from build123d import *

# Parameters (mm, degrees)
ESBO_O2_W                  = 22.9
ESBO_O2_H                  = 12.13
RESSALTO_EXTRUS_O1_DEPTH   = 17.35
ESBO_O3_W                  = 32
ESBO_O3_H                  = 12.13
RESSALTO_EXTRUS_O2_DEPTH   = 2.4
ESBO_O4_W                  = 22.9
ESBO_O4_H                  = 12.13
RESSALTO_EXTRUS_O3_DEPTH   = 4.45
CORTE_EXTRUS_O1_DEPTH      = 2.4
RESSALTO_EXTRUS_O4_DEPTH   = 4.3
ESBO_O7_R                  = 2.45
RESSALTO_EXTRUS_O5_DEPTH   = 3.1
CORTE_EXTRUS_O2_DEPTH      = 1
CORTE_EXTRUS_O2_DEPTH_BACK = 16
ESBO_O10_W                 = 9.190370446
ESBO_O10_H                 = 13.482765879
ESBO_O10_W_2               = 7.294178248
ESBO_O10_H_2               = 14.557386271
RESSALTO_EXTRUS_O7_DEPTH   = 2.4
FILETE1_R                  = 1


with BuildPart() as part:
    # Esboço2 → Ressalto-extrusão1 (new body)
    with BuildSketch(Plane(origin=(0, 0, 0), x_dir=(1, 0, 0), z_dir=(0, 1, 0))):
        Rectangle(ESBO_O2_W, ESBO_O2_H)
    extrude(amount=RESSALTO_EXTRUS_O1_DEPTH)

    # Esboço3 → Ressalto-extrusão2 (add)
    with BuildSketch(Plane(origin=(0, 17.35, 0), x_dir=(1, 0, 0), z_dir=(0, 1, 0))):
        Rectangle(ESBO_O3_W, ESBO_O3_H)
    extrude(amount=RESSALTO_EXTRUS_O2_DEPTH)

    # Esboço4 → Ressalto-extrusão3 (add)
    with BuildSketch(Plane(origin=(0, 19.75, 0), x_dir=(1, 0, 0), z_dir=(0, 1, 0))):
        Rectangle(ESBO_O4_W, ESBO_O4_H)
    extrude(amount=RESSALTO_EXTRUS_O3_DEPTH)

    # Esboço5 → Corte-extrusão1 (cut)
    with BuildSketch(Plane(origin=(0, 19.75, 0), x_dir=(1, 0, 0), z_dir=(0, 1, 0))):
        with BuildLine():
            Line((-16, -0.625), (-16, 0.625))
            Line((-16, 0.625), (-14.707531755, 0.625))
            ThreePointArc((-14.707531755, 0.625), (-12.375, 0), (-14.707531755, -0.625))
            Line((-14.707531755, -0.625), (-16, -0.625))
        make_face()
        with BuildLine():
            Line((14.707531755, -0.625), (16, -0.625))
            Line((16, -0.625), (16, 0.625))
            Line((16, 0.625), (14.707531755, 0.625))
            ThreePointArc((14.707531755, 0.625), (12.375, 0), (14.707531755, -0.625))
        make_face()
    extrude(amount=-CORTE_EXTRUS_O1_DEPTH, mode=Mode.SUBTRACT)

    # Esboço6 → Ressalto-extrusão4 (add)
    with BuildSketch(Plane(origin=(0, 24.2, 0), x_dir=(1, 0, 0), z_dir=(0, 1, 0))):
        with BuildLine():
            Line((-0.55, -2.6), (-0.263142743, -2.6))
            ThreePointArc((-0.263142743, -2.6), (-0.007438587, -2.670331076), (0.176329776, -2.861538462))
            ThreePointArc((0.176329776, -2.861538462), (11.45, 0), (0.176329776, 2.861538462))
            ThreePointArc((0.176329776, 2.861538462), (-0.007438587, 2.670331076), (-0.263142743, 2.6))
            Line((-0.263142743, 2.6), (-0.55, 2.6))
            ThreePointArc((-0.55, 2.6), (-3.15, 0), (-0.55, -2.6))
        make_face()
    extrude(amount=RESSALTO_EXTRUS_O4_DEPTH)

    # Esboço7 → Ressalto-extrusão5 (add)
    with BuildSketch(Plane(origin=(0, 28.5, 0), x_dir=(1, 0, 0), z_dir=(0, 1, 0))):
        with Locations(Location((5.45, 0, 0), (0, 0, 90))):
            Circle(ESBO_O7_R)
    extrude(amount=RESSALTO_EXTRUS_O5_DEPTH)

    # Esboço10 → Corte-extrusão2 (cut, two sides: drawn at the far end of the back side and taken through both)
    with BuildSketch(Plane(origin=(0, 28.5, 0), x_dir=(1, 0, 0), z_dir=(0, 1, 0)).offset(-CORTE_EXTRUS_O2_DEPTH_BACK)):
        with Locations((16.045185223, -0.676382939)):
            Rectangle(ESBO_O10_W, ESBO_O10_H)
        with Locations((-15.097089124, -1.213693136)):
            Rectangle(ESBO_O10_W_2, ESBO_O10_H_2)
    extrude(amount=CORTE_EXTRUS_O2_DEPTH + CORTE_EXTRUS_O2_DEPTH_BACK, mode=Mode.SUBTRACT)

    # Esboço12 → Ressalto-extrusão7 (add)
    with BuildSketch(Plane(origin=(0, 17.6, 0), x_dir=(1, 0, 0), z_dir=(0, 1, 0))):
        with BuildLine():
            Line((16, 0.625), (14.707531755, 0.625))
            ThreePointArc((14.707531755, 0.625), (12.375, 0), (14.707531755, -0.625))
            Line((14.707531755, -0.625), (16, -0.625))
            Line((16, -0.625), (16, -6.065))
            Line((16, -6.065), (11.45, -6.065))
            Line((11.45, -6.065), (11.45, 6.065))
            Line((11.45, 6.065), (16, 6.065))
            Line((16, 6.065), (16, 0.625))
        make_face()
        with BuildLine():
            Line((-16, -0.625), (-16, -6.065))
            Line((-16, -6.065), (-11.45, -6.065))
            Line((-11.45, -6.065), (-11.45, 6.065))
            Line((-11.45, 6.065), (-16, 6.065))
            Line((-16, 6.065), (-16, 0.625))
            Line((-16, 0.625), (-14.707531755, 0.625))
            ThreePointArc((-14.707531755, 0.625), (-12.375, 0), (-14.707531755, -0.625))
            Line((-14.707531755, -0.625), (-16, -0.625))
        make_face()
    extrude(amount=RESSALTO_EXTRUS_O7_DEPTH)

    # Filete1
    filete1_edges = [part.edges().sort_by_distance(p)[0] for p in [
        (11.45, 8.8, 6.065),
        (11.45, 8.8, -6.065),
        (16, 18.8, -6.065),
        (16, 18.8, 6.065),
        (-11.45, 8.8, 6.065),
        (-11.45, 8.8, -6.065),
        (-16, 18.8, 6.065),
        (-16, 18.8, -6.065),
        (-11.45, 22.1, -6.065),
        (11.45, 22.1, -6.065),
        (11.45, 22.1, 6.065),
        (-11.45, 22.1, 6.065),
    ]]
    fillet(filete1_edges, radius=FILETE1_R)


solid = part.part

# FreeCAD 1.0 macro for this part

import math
import FreeCAD as App
import Part
import Sketcher
from FreeCAD import Vector
Q = App.Units.Quantity


def edges_at(feature, points):
    """Names of the edges that pass closest to the given points."""
    edges = feature.Shape.Edges
    near = lambda p: min(range(len(edges)), key=lambda i: edges[i].distToShape(Part.Vertex(*p))[0])
    return sorted({f"Edge{near(p) + 1}" for p in points})

doc = App.newDocument("Part")
body = doc.addObject("PartDesign::Body", "Body")

sketch1 = body.newObject("Sketcher::SketchObject", "Sketch")
sketch1.AttachmentSupport = (doc.getObject("XZ_Plane"), [""])
sketch1.MapMode = "FlatFace"
sketch1.addGeometry([
    Part.LineSegment(Vector(-11, -6, 0), Vector(-11, 6, 0)),
    Part.LineSegment(Vector(-11, 6, 0), Vector(11, 6, 0)),
    Part.LineSegment(Vector(11, 6, 0), Vector(11, -6, 0)),
    Part.LineSegment(Vector(11, -6, 0), Vector(-11, -6, 0)),
], False)
sketch1.addConstraint([
    Sketcher.Constraint("Coincident", 0, 2, 1, 1),
    Sketcher.Constraint("Coincident", 1, 2, 2, 1),
    Sketcher.Constraint("Coincident", 2, 2, 3, 1),
    Sketcher.Constraint("Coincident", 3, 2, 0, 1),
    Sketcher.Constraint("Vertical", 0),
    Sketcher.Constraint("Horizontal", 1),
    Sketcher.Constraint("Vertical", 2),
    Sketcher.Constraint("Horizontal", 3),
    Sketcher.Constraint("Symmetric", 0, 2, 2, 2, -1, 1),
    Sketcher.Constraint("DistanceX", 1, 1, 1, 2, Q("22.9 mm")),
    Sketcher.Constraint("DistanceY", 0, 1, 0, 2, Q("12.13 mm")),
])
pad1 = body.newObject("PartDesign::Pad", "Pad")
pad1.Profile = sketch1
pad1.Length = 17.35
pad1.Reversed = True

sketch2 = body.newObject("Sketcher::SketchObject", "Sketch001")
sketch2.AttachmentSupport = (doc.getObject("XZ_Plane"), [""])
sketch2.MapMode = "FlatFace"
sketch2.AttachmentOffset = App.Placement(Vector(0, 0, -17.35), App.Rotation())
sketch2.addGeometry([
    Part.LineSegment(Vector(-16, -6, 0), Vector(-16, 6, 0)),
    Part.LineSegment(Vector(-16, 6, 0), Vector(16, 6, 0)),
    Part.LineSegment(Vector(16, 6, 0), Vector(16, -6, 0)),
    Part.LineSegment(Vector(16, -6, 0), Vector(-16, -6, 0)),
], False)
sketch2.addConstraint([
    Sketcher.Constraint("Coincident", 0, 2, 1, 1),
    Sketcher.Constraint("Coincident", 1, 2, 2, 1),
    Sketcher.Constraint("Coincident", 2, 2, 3, 1),
    Sketcher.Constraint("Coincident", 3, 2, 0, 1),
    Sketcher.Constraint("Vertical", 0),
    Sketcher.Constraint("Horizontal", 1),
    Sketcher.Constraint("Vertical", 2),
    Sketcher.Constraint("Horizontal", 3),
    Sketcher.Constraint("Symmetric", 0, 2, 2, 2, -1, 1),
    Sketcher.Constraint("DistanceX", 1, 1, 1, 2, Q("32 mm")),
    Sketcher.Constraint("DistanceY", 0, 1, 0, 2, Q("12.13 mm")),
])
pad2 = body.newObject("PartDesign::Pad", "Pad001")
pad2.Profile = sketch2
pad2.Length = 2.4
pad2.Reversed = True

sketch3 = body.newObject("Sketcher::SketchObject", "Sketch002")
sketch3.AttachmentSupport = (doc.getObject("XZ_Plane"), [""])
sketch3.MapMode = "FlatFace"
sketch3.AttachmentOffset = App.Placement(Vector(0, 0, -19.75), App.Rotation())
sketch3.addGeometry([
    Part.LineSegment(Vector(-11, -6, 0), Vector(-11, 6, 0)),
    Part.LineSegment(Vector(-11, 6, 0), Vector(11, 6, 0)),
    Part.LineSegment(Vector(11, 6, 0), Vector(11, -6, 0)),
    Part.LineSegment(Vector(11, -6, 0), Vector(-11, -6, 0)),
], False)
sketch3.addConstraint([
    Sketcher.Constraint("Coincident", 0, 2, 1, 1),
    Sketcher.Constraint("Coincident", 1, 2, 2, 1),
    Sketcher.Constraint("Coincident", 2, 2, 3, 1),
    Sketcher.Constraint("Coincident", 3, 2, 0, 1),
    Sketcher.Constraint("Vertical", 0),
    Sketcher.Constraint("Horizontal", 1),
    Sketcher.Constraint("Vertical", 2),
    Sketcher.Constraint("Horizontal", 3),
    Sketcher.Constraint("Symmetric", 0, 2, 2, 2, -1, 1),
    Sketcher.Constraint("DistanceX", 1, 1, 1, 2, Q("22.9 mm")),
    Sketcher.Constraint("DistanceY", 0, 1, 0, 2, Q("12.13 mm")),
])
pad3 = body.newObject("PartDesign::Pad", "Pad002")
pad3.Profile = sketch3
pad3.Length = 4.45
pad3.Reversed = True

sketch4 = body.newObject("Sketcher::SketchObject", "Sketch003")
sketch4.AttachmentSupport = (doc.getObject("XZ_Plane"), [""])
sketch4.MapMode = "FlatFace"
sketch4.AttachmentOffset = App.Placement(Vector(0, 0, -19.75), App.Rotation())
sketch4.addGeometry([
    Part.LineSegment(Vector(-16, -0.6, 0), Vector(-16, 0.6, 0)),
    Part.LineSegment(Vector(-16, 0.6, 0), Vector(-14.7, 0.6, 0)),
    Part.ArcOfCircle(Part.Circle(Vector(-13.6, 0, 0), Vector(0, 0, 1), 1.2), math.radians(-150), math.radians(150)),
    Part.LineSegment(Vector(-14.7, -0.6, 0), Vector(-16, -0.6, 0)),
    Part.LineSegment(Vector(14.7, 0.6, 0), Vector(16, 0.6, 0)),
    Part.LineSegment(Vector(16, 0.6, 0), Vector(16, -0.6, 0)),
    Part.LineSegment(Vector(16, -0.6, 0), Vector(14.7, -0.6, 0)),
    Part.ArcOfCircle(Part.Circle(Vector(13.6, 0, 0), Vector(0, 0, 1), 1.2), math.radians(30), math.radians(330)),
], False)
sketch4.addConstraint([
    Sketcher.Constraint("Coincident", 0, 2, 1, 1),
    Sketcher.Constraint("Coincident", 1, 2, 2, 2),
    Sketcher.Constraint("Coincident", 2, 1, 3, 1),
    Sketcher.Constraint("Coincident", 3, 2, 0, 1),
    Sketcher.Constraint("Coincident", 4, 2, 5, 1),
    Sketcher.Constraint("Coincident", 5, 2, 6, 1),
    Sketcher.Constraint("Coincident", 6, 2, 7, 2),
    Sketcher.Constraint("Coincident", 7, 1, 4, 1),
    Sketcher.Constraint("Vertical", 0),
    Sketcher.Constraint("Horizontal", 1),
    Sketcher.Constraint("Horizontal", 3),
    Sketcher.Constraint("Horizontal", 4),
    Sketcher.Constraint("Vertical", 5),
    Sketcher.Constraint("Horizontal", 6),
    Sketcher.Constraint("Equal", 2, 7),
    Sketcher.Constraint("Symmetric", 2, 3, 7, 3, -1, 1),
    Sketcher.Constraint("Symmetric", 3, 2, 4, 2, -1, 1),
    Sketcher.Constraint("Symmetric", 2, 1, 6, 2, -2),
    Sketcher.Constraint("Horizontal", 1, 2, 4, 2),
    Sketcher.Constraint("Radius", 2, Q("1.25 mm")),
    Sketcher.Constraint("DistanceX", 0, 2, -1, 1, Q("16 mm")),
    Sketcher.Constraint("DistanceY", 0, 1, 0, 2, Q("1.25 mm")),
    Sketcher.Constraint("DistanceX", 2, 3, 7, 3, Q("27.25 mm")),
])
pocket1 = body.newObject("PartDesign::Pocket", "Pocket")
pocket1.Profile = sketch4
pocket1.Length = 2.4
pocket1.Reversed = True

sketch5 = body.newObject("Sketcher::SketchObject", "Sketch004")
sketch5.AttachmentSupport = (doc.getObject("XZ_Plane"), [""])
sketch5.MapMode = "FlatFace"
sketch5.AttachmentOffset = App.Placement(Vector(0, 0, -24.2), App.Rotation())
sketch5.addGeometry([
    Part.LineSegment(Vector(-0.55, 2.6, 0), Vector(-0.26, 2.6, 0)),
    Part.ArcOfCircle(Part.Circle(Vector(-0.26, 3.1, 0), Vector(0, 0, 1), 0.5), math.radians(-90), math.radians(-28)),
    Part.ArcOfCircle(Part.Circle(Vector(5.45, 0, 0), Vector(0, 0, 1), 6), math.radians(-152), math.radians(152)),
    Part.ArcOfCircle(Part.Circle(Vector(-0.26, -3.1, 0), Vector(0, 0, 1), 0.5), math.radians(28), math.radians(90)),
    Part.LineSegment(Vector(-0.26, -2.6, 0), Vector(-0.55, -2.6, 0)),
    Part.ArcOfCircle(Part.Circle(Vector(-0.55, 0, 0), Vector(0, 0, 1), 2.6), math.radians(90), math.radians(270)),
], False)
sketch5.addConstraint([
    Sketcher.Constraint("Tangent", 0, 2, 1, 1),
    Sketcher.Constraint("Tangent", 1, 2, 2, 2),
    Sketcher.Constraint("Tangent", 2, 1, 3, 1),
    Sketcher.Constraint("Tangent", 3, 2, 4, 1),
    Sketcher.Constraint("Tangent", 4, 2, 5, 2),
    Sketcher.Constraint("Tangent", 5, 1, 0, 1),
    Sketcher.Constraint("Horizontal", 0),
    Sketcher.Constraint("Horizontal", 4),
    Sketcher.Constraint("Equal", 1, 3),
    Sketcher.Constraint("Symmetric", 1, 3, 3, 3, -1),
    Sketcher.Constraint("Radius", 2, Q("6 mm")),
    Sketcher.Constraint("Radius", 1, Q("0.5 mm")),
    Sketcher.Constraint("Radius", 5, Q("2.6 mm")),
    Sketcher.Constraint("DistanceX", 5, 3, 2, 3, Q("6 mm")),
    Sketcher.Constraint("DistanceX", -1, 1, 2, 3, Q("5.45 mm")),
])
pad4 = body.newObject("PartDesign::Pad", "Pad003")
pad4.Profile = sketch5
pad4.Length = 4.3
pad4.Reversed = True

sketch6 = body.newObject("Sketcher::SketchObject", "Sketch005")
sketch6.AttachmentSupport = (doc.getObject("XZ_Plane"), [""])
sketch6.MapMode = "FlatFace"
sketch6.AttachmentOffset = App.Placement(Vector(0, 0, -28.5), App.Rotation())
sketch6.addGeometry(Part.Circle(Vector(5.5, 0, 0), Vector(0, 0, 1), 2.5), False)
sketch6.addConstraint([
    Sketcher.Constraint("PointOnObject", 0, 3, -1),
    Sketcher.Constraint("Diameter", 0, Q("4.9 mm")),
    Sketcher.Constraint("DistanceX", -1, 1, 0, 3, Q("5.45 mm")),
])
pad5 = body.newObject("PartDesign::Pad", "Pad004")
pad5.Profile = sketch6
pad5.Length = 3.1
pad5.Reversed = True

sketch7 = body.newObject("Sketcher::SketchObject", "Sketch006")
sketch7.AttachmentSupport = (doc.getObject("XZ_Plane"), [""])
sketch7.MapMode = "FlatFace"
sketch7.AttachmentOffset = App.Placement(Vector(0, 0, -28.5), App.Rotation())
sketch7.addGeometry([
    Part.LineSegment(Vector(11, -6, 0), Vector(11, 7, 0)),
    Part.LineSegment(Vector(11, 7, 0), Vector(21, 7, 0)),
    Part.LineSegment(Vector(21, 7, 0), Vector(21, -6, 0)),
    Part.LineSegment(Vector(21, -6, 0), Vector(11, -6, 0)),
    Part.LineSegment(Vector(-19, -6, 0), Vector(-19, 8, 0)),
    Part.LineSegment(Vector(-19, 8, 0), Vector(-11, 8, 0)),
    Part.LineSegment(Vector(-11, 8, 0), Vector(-11, -6, 0)),
    Part.LineSegment(Vector(-11, -6, 0), Vector(-19, -6, 0)),
], False)
sketch7.addConstraint([
    Sketcher.Constraint("Coincident", 0, 2, 1, 1),
    Sketcher.Constraint("Coincident", 1, 2, 2, 1),
    Sketcher.Constraint("Coincident", 2, 2, 3, 1),
    Sketcher.Constraint("Coincident", 3, 2, 0, 1),
    Sketcher.Constraint("Coincident", 4, 2, 5, 1),
    Sketcher.Constraint("Coincident", 5, 2, 6, 1),
    Sketcher.Constraint("Coincident", 6, 2, 7, 1),
    Sketcher.Constraint("Coincident", 7, 2, 4, 1),
    Sketcher.Constraint("Vertical", 0),
    Sketcher.Constraint("Horizontal", 1),
    Sketcher.Constraint("Vertical", 2),
    Sketcher.Constraint("Horizontal", 3),
    Sketcher.Constraint("Vertical", 4),
    Sketcher.Constraint("Horizontal", 5),
    Sketcher.Constraint("Vertical", 6),
    Sketcher.Constraint("Horizontal", 7),
    Sketcher.Constraint("Symmetric", 3, 2, 6, 2, -2),
    Sketcher.Constraint("DistanceX", 5, 2, 0, 2, Q("22.9 mm")),
    Sketcher.Constraint("DistanceY", 2, 2, -1, 1, Q("6.065 mm")),
    Sketcher.Constraint("DistanceX", 1, 1, 1, 2, Q("9.19037 mm")),
    Sketcher.Constraint("DistanceX", 5, 1, 5, 2, Q("7.294178 mm")),
    Sketcher.Constraint("DistanceY", 0, 1, 0, 2, Q("13.482766 mm")),
    Sketcher.Constraint("DistanceY", 4, 1, 4, 2, Q("14.557386 mm")),
])
pocket2 = body.newObject("PartDesign::Pocket", "Pocket001")
pocket2.Profile = sketch7
pocket2.Type = "ThroughAll"
pocket2.Midplane = True

sketch8 = body.newObject("Sketcher::SketchObject", "Sketch007")
sketch8.AttachmentSupport = (doc.getObject("XZ_Plane"), [""])
sketch8.MapMode = "FlatFace"
sketch8.AttachmentOffset = App.Placement(Vector(0, 0, -17.6), App.Rotation())
sketch8.addGeometry([
    Part.LineSegment(Vector(14.7, -0.6, 0), Vector(16, -0.6, 0)),
    Part.LineSegment(Vector(16, -0.6, 0), Vector(16, -6.1, 0)),
    Part.LineSegment(Vector(16, -6.1, 0), Vector(11.4, -6.1, 0)),
    Part.LineSegment(Vector(11.4, -6.1, 0), Vector(11.4, 6.1, 0)),
    Part.LineSegment(Vector(11.4, 6.1, 0), Vector(16, 6.1, 0)),
    Part.LineSegment(Vector(16, 6.1, 0), Vector(16, 0.6, 0)),
    Part.LineSegment(Vector(16, 0.6, 0), Vector(14.7, 0.6, 0)),
    Part.ArcOfCircle(Part.Circle(Vector(13.6, 0, 0), Vector(0, 0, 1), 1.2), math.radians(30), math.radians(330)),
    Part.LineSegment(Vector(-16, 0.6, 0), Vector(-16, 6.1, 0)),
    Part.LineSegment(Vector(-16, 6.1, 0), Vector(-11.4, 6.1, 0)),
    Part.LineSegment(Vector(-11.4, 6.1, 0), Vector(-11.4, -6.1, 0)),
    Part.LineSegment(Vector(-11.4, -6.1, 0), Vector(-16, -6.1, 0)),
    Part.LineSegment(Vector(-16, -6.1, 0), Vector(-16, -0.6, 0)),
    Part.LineSegment(Vector(-16, -0.6, 0), Vector(-14.7, -0.6, 0)),
    Part.ArcOfCircle(Part.Circle(Vector(-13.6, 0, 0), Vector(0, 0, 1), 1.2), math.radians(-150), math.radians(150)),
    Part.LineSegment(Vector(-14.7, 0.6, 0), Vector(-16, 0.6, 0)),
], False)
sketch8.addConstraint([
    Sketcher.Constraint("Coincident", 0, 2, 1, 1),
    Sketcher.Constraint("Coincident", 1, 2, 2, 1),
    Sketcher.Constraint("Coincident", 2, 2, 3, 1),
    Sketcher.Constraint("Coincident", 3, 2, 4, 1),
    Sketcher.Constraint("Coincident", 4, 2, 5, 1),
    Sketcher.Constraint("Coincident", 5, 2, 6, 1),
    Sketcher.Constraint("Coincident", 6, 2, 7, 1),
    Sketcher.Constraint("Coincident", 7, 2, 0, 1),
    Sketcher.Constraint("Coincident", 8, 2, 9, 1),
    Sketcher.Constraint("Coincident", 9, 2, 10, 1),
    Sketcher.Constraint("Coincident", 10, 2, 11, 1),
    Sketcher.Constraint("Coincident", 11, 2, 12, 1),
    Sketcher.Constraint("Coincident", 12, 2, 13, 1),
    Sketcher.Constraint("Coincident", 13, 2, 14, 1),
    Sketcher.Constraint("Coincident", 14, 2, 15, 1),
    Sketcher.Constraint("Coincident", 15, 2, 8, 1),
    Sketcher.Constraint("Horizontal", 0),
    Sketcher.Constraint("Vertical", 1),
    Sketcher.Constraint("Horizontal", 2),
    Sketcher.Constraint("Vertical", 3),
    Sketcher.Constraint("Horizontal", 4),
    Sketcher.Constraint("Vertical", 5),
    Sketcher.Constraint("Horizontal", 6),
    Sketcher.Constraint("Vertical", 8),
    Sketcher.Constraint("Horizontal", 9),
    Sketcher.Constraint("Vertical", 10),
    Sketcher.Constraint("Horizontal", 11),
    Sketcher.Constraint("Vertical", 12),
    Sketcher.Constraint("Horizontal", 13),
    Sketcher.Constraint("Horizontal", 15),
    Sketcher.Constraint("Equal", 7, 14),
    Sketcher.Constraint("Symmetric", 7, 3, 14, 3, -1, 1),
    Sketcher.Constraint("Symmetric", 1, 2, 8, 2, -1, 1),
    Sketcher.Constraint("Symmetric", 3, 2, 10, 2, -1, 1),
    Sketcher.Constraint("Symmetric", 5, 2, 12, 2, -1, 1),
    Sketcher.Constraint("Symmetric", 4, 2, 8, 2, -2),
    Sketcher.Constraint("Symmetric", 7, 2, 13, 2, -2),
    Sketcher.Constraint("Horizontal", 6, 2, 14, 2),
    Sketcher.Constraint("Radius", 7, Q("1.25 mm")),
    Sketcher.Constraint("DistanceX", -1, 1, 0, 2, Q("16 mm")),
    Sketcher.Constraint("DistanceX", 2, 2, 2, 1, Q("4.55 mm")),
    Sketcher.Constraint("DistanceY", 1, 2, 1, 1, Q("5.44 mm")),
    Sketcher.Constraint("DistanceY", 3, 1, 3, 2, Q("12.13 mm")),
    Sketcher.Constraint("DistanceX", 14, 3, 7, 3, Q("27.25 mm")),
])
pad6 = body.newObject("PartDesign::Pad", "Pad005")
pad6.Profile = sketch8
pad6.Length = 2.4
pad6.Reversed = True
doc.recompute()

fillet = body.newObject("PartDesign::Fillet", "Fillet")
fillet.Base = (pad6, edges_at(pad6, [
    (11.45, 8.8, 6.065),
    (11.45, 8.675, -6.065),
    (16, 18.8, -6.065),
    (16, 18.8, 6.065),
    (-11.45, 8.8, 6.065),
    (-11.45, 8.675, -6.065),
    (-16, 18.8, 6.065),
    (-16, 18.8, -6.065),
    (-11.45, 22.1, -6.065),
    (11.45, 22.1, -6.065),
    (11.45, 22.1, 6.065),
    (-11.45, 22.1, 6.065),
]))
fillet.Radius = 1

doc.recompute()
